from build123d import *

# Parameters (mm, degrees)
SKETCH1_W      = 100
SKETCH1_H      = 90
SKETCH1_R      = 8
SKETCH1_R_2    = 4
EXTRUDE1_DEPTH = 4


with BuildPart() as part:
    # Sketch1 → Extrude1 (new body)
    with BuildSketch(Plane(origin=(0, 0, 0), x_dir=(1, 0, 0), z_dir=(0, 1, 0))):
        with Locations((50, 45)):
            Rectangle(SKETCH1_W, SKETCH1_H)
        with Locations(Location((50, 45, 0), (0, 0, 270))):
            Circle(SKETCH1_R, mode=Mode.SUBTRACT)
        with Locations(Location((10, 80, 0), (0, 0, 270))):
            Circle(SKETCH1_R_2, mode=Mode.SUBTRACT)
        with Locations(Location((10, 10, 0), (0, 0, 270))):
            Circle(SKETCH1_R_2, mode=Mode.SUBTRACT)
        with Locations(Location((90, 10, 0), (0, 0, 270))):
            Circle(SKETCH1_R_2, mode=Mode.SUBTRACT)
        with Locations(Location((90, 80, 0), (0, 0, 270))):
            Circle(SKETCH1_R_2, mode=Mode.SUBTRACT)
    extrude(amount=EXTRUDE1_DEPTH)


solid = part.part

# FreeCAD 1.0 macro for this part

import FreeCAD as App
import Part
import Sketcher

doc = App.newDocument("Part")
body = doc.addObject("PartDesign::Body", "Body")

sketch1 = doc.addObject("Sketcher::SketchObject", "Sketch")
body.addObject(sketch1)
sketch1.AttachmentSupport = (doc.XZ_Plane, [""])
sketch1.MapMode = "FlatFace"
sketch1.addGeometry(Part.LineSegment(App.Vector(0, -90, 0), App.Vector(0, 0, 0)), False)
sketch1.addGeometry(Part.LineSegment(App.Vector(0, 0, 0), App.Vector(100, 0, 0)), False)
sketch1.addGeometry(Part.LineSegment(App.Vector(100, 0, 0), App.Vector(100, -90, 0)), False)
sketch1.addGeometry(Part.LineSegment(App.Vector(100, -90, 0), App.Vector(0, -90, 0)), False)
sketch1.addGeometry(Part.Circle(App.Vector(10, -10, 0), App.Vector(0, 0, 1), 4), False)
sketch1.addGeometry(Part.Circle(App.Vector(90, -10, 0), App.Vector(0, 0, 1), 4), False)
sketch1.addGeometry(Part.Circle(App.Vector(10, -80, 0), App.Vector(0, 0, 1), 4), False)
sketch1.addGeometry(Part.Circle(App.Vector(50, -45, 0), App.Vector(0, 0, 1), 8), False)
sketch1.addGeometry(Part.Circle(App.Vector(90, -80, 0), App.Vector(0, 0, 1), 4), False)
sketch1.addConstraint(Sketcher.Constraint("Coincident", 0, 2, 1, 1))
sketch1.addConstraint(Sketcher.Constraint("Coincident", 1, 2, 2, 1))
sketch1.addConstraint(Sketcher.Constraint("Coincident", 2, 2, 3, 1))
sketch1.addConstraint(Sketcher.Constraint("Coincident", 3, 2, 0, 1))
sketch1.addConstraint(Sketcher.Constraint("Vertical", 0))
sketch1.addConstraint(Sketcher.Constraint("Horizontal", 1))
sketch1.addConstraint(Sketcher.Constraint("Vertical", 2))
sketch1.addConstraint(Sketcher.Constraint("Horizontal", 3))
sketch1.addConstraint(Sketcher.Constraint("Coincident", 0, 2, -1, 1))
sketch1.addConstraint(Sketcher.Constraint("Equal", 4, 5))
sketch1.addConstraint(Sketcher.Constraint("Equal", 5, 6))
sketch1.addConstraint(Sketcher.Constraint("Equal", 6, 8))
sketch1.addConstraint(Sketcher.Constraint("Horizontal", 4, 3, 5, 3))
sketch1.addConstraint(Sketcher.Constraint("Horizontal", 6, 3, 8, 3))
sketch1.addConstraint(Sketcher.Constraint("Vertical", 4, 3, 6, 3))
sketch1.addConstraint(Sketcher.Constraint("Vertical", 5, 3, 8, 3))
sketch1.addConstraint(Sketcher.Constraint("Diameter", 4, 8.0))
sketch1.addConstraint(Sketcher.Constraint("Diameter", 7, 16.0))
sketch1.addConstraint(Sketcher.Constraint("DistanceX", 1, 1, 1, 2, 100.0))
sketch1.addConstraint(Sketcher.Constraint("DistanceY", 0, 1, 0, 2, 90.0))
sketch1.addConstraint(Sketcher.Constraint("DistanceX", -1, 1, 4, 3, 10.0))
sketch1.addConstraint(Sketcher.Constraint("DistanceY", 4, 3, -1, 1, 10.0))
sketch1.addConstraint(Sketcher.Constraint("DistanceX", -1, 1, 5, 3, 90.0))
sketch1.addConstraint(Sketcher.Constraint("DistanceY", 6, 3, -1, 1, 80.0))
sketch1.addConstraint(Sketcher.Constraint("DistanceX", -1, 1, 7, 3, 50.0))
sketch1.addConstraint(Sketcher.Constraint("DistanceY", 7, 3, -1, 1, 45.0))
pad1 = doc.addObject("PartDesign::Pad", "Pad")
body.addObject(pad1)
pad1.Profile = sketch1
pad1.Length = 4
pad1.Reversed = True

doc.recompute()
